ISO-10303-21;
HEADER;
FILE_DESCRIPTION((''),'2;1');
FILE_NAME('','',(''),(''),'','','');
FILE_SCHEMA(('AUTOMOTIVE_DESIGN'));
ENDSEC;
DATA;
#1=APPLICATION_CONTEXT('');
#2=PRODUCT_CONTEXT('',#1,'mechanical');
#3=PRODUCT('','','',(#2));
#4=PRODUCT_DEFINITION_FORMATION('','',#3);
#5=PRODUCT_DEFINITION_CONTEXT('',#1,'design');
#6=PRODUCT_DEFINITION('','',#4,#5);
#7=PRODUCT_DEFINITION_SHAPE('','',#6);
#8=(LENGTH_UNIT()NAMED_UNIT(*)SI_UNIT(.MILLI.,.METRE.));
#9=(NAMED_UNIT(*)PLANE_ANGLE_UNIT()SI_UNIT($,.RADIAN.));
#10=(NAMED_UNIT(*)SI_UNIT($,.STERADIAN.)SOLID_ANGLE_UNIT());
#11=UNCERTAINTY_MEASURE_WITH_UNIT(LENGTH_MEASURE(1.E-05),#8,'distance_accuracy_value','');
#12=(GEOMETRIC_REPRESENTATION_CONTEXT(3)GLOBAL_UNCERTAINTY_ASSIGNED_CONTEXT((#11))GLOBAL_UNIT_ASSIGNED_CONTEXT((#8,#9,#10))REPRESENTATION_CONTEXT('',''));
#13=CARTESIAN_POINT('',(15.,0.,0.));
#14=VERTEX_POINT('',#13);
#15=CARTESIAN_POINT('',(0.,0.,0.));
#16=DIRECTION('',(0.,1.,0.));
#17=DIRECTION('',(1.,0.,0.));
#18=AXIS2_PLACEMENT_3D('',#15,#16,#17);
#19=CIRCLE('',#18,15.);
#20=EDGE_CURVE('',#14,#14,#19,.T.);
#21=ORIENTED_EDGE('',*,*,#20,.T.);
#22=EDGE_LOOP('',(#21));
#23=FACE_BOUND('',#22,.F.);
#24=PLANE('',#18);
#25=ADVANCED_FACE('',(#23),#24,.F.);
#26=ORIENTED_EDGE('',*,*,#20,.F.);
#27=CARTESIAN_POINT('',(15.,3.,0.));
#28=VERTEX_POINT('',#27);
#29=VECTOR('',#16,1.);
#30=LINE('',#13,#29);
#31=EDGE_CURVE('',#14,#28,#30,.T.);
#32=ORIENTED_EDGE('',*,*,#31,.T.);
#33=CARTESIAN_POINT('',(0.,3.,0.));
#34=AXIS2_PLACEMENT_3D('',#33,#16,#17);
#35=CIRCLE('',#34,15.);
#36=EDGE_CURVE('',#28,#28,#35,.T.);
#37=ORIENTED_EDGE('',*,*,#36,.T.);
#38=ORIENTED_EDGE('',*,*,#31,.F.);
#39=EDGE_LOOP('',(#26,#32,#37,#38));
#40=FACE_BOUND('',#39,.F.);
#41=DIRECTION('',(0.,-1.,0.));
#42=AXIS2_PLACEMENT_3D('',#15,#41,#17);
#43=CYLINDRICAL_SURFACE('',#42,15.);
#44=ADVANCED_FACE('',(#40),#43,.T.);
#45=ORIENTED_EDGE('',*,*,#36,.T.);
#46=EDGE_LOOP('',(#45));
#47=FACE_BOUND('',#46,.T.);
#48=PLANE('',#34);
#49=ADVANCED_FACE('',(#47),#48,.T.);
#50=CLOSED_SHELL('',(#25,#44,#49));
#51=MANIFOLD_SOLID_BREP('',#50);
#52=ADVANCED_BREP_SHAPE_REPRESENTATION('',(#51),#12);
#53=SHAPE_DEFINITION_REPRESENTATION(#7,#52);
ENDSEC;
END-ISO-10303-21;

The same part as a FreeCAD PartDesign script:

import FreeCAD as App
import Part
import Sketcher
from FreeCAD import Vector
Q = App.Units.Quantity

doc = App.newDocument("Part")
body = doc.addObject("PartDesign::Body", "Body")

# Sketch on XZ plane
sketch1 = body.newObject("Sketcher::SketchObject", "Sketch")
sketch1.AttachmentSupport = (doc.getObject("XZ_Plane"), [""])
sketch1.MapMode = "FlatFace"
sketch1.addGeometry(Part.Circle(Vector(0, 0, 0), Vector(0, 0, 1), 15), False)
sketch1.addConstraint([
    Sketcher.Constraint("Coincident", 0, 3, -1, 1),
    Sketcher.Constraint("Diameter", 0, Q("30 mm")),
])
pad1 = body.newObject("PartDesign::Pad", "Pad")
pad1.Profile = sketch1
pad1.Length = 3
pad1.Reversed = True

doc.recompute()
